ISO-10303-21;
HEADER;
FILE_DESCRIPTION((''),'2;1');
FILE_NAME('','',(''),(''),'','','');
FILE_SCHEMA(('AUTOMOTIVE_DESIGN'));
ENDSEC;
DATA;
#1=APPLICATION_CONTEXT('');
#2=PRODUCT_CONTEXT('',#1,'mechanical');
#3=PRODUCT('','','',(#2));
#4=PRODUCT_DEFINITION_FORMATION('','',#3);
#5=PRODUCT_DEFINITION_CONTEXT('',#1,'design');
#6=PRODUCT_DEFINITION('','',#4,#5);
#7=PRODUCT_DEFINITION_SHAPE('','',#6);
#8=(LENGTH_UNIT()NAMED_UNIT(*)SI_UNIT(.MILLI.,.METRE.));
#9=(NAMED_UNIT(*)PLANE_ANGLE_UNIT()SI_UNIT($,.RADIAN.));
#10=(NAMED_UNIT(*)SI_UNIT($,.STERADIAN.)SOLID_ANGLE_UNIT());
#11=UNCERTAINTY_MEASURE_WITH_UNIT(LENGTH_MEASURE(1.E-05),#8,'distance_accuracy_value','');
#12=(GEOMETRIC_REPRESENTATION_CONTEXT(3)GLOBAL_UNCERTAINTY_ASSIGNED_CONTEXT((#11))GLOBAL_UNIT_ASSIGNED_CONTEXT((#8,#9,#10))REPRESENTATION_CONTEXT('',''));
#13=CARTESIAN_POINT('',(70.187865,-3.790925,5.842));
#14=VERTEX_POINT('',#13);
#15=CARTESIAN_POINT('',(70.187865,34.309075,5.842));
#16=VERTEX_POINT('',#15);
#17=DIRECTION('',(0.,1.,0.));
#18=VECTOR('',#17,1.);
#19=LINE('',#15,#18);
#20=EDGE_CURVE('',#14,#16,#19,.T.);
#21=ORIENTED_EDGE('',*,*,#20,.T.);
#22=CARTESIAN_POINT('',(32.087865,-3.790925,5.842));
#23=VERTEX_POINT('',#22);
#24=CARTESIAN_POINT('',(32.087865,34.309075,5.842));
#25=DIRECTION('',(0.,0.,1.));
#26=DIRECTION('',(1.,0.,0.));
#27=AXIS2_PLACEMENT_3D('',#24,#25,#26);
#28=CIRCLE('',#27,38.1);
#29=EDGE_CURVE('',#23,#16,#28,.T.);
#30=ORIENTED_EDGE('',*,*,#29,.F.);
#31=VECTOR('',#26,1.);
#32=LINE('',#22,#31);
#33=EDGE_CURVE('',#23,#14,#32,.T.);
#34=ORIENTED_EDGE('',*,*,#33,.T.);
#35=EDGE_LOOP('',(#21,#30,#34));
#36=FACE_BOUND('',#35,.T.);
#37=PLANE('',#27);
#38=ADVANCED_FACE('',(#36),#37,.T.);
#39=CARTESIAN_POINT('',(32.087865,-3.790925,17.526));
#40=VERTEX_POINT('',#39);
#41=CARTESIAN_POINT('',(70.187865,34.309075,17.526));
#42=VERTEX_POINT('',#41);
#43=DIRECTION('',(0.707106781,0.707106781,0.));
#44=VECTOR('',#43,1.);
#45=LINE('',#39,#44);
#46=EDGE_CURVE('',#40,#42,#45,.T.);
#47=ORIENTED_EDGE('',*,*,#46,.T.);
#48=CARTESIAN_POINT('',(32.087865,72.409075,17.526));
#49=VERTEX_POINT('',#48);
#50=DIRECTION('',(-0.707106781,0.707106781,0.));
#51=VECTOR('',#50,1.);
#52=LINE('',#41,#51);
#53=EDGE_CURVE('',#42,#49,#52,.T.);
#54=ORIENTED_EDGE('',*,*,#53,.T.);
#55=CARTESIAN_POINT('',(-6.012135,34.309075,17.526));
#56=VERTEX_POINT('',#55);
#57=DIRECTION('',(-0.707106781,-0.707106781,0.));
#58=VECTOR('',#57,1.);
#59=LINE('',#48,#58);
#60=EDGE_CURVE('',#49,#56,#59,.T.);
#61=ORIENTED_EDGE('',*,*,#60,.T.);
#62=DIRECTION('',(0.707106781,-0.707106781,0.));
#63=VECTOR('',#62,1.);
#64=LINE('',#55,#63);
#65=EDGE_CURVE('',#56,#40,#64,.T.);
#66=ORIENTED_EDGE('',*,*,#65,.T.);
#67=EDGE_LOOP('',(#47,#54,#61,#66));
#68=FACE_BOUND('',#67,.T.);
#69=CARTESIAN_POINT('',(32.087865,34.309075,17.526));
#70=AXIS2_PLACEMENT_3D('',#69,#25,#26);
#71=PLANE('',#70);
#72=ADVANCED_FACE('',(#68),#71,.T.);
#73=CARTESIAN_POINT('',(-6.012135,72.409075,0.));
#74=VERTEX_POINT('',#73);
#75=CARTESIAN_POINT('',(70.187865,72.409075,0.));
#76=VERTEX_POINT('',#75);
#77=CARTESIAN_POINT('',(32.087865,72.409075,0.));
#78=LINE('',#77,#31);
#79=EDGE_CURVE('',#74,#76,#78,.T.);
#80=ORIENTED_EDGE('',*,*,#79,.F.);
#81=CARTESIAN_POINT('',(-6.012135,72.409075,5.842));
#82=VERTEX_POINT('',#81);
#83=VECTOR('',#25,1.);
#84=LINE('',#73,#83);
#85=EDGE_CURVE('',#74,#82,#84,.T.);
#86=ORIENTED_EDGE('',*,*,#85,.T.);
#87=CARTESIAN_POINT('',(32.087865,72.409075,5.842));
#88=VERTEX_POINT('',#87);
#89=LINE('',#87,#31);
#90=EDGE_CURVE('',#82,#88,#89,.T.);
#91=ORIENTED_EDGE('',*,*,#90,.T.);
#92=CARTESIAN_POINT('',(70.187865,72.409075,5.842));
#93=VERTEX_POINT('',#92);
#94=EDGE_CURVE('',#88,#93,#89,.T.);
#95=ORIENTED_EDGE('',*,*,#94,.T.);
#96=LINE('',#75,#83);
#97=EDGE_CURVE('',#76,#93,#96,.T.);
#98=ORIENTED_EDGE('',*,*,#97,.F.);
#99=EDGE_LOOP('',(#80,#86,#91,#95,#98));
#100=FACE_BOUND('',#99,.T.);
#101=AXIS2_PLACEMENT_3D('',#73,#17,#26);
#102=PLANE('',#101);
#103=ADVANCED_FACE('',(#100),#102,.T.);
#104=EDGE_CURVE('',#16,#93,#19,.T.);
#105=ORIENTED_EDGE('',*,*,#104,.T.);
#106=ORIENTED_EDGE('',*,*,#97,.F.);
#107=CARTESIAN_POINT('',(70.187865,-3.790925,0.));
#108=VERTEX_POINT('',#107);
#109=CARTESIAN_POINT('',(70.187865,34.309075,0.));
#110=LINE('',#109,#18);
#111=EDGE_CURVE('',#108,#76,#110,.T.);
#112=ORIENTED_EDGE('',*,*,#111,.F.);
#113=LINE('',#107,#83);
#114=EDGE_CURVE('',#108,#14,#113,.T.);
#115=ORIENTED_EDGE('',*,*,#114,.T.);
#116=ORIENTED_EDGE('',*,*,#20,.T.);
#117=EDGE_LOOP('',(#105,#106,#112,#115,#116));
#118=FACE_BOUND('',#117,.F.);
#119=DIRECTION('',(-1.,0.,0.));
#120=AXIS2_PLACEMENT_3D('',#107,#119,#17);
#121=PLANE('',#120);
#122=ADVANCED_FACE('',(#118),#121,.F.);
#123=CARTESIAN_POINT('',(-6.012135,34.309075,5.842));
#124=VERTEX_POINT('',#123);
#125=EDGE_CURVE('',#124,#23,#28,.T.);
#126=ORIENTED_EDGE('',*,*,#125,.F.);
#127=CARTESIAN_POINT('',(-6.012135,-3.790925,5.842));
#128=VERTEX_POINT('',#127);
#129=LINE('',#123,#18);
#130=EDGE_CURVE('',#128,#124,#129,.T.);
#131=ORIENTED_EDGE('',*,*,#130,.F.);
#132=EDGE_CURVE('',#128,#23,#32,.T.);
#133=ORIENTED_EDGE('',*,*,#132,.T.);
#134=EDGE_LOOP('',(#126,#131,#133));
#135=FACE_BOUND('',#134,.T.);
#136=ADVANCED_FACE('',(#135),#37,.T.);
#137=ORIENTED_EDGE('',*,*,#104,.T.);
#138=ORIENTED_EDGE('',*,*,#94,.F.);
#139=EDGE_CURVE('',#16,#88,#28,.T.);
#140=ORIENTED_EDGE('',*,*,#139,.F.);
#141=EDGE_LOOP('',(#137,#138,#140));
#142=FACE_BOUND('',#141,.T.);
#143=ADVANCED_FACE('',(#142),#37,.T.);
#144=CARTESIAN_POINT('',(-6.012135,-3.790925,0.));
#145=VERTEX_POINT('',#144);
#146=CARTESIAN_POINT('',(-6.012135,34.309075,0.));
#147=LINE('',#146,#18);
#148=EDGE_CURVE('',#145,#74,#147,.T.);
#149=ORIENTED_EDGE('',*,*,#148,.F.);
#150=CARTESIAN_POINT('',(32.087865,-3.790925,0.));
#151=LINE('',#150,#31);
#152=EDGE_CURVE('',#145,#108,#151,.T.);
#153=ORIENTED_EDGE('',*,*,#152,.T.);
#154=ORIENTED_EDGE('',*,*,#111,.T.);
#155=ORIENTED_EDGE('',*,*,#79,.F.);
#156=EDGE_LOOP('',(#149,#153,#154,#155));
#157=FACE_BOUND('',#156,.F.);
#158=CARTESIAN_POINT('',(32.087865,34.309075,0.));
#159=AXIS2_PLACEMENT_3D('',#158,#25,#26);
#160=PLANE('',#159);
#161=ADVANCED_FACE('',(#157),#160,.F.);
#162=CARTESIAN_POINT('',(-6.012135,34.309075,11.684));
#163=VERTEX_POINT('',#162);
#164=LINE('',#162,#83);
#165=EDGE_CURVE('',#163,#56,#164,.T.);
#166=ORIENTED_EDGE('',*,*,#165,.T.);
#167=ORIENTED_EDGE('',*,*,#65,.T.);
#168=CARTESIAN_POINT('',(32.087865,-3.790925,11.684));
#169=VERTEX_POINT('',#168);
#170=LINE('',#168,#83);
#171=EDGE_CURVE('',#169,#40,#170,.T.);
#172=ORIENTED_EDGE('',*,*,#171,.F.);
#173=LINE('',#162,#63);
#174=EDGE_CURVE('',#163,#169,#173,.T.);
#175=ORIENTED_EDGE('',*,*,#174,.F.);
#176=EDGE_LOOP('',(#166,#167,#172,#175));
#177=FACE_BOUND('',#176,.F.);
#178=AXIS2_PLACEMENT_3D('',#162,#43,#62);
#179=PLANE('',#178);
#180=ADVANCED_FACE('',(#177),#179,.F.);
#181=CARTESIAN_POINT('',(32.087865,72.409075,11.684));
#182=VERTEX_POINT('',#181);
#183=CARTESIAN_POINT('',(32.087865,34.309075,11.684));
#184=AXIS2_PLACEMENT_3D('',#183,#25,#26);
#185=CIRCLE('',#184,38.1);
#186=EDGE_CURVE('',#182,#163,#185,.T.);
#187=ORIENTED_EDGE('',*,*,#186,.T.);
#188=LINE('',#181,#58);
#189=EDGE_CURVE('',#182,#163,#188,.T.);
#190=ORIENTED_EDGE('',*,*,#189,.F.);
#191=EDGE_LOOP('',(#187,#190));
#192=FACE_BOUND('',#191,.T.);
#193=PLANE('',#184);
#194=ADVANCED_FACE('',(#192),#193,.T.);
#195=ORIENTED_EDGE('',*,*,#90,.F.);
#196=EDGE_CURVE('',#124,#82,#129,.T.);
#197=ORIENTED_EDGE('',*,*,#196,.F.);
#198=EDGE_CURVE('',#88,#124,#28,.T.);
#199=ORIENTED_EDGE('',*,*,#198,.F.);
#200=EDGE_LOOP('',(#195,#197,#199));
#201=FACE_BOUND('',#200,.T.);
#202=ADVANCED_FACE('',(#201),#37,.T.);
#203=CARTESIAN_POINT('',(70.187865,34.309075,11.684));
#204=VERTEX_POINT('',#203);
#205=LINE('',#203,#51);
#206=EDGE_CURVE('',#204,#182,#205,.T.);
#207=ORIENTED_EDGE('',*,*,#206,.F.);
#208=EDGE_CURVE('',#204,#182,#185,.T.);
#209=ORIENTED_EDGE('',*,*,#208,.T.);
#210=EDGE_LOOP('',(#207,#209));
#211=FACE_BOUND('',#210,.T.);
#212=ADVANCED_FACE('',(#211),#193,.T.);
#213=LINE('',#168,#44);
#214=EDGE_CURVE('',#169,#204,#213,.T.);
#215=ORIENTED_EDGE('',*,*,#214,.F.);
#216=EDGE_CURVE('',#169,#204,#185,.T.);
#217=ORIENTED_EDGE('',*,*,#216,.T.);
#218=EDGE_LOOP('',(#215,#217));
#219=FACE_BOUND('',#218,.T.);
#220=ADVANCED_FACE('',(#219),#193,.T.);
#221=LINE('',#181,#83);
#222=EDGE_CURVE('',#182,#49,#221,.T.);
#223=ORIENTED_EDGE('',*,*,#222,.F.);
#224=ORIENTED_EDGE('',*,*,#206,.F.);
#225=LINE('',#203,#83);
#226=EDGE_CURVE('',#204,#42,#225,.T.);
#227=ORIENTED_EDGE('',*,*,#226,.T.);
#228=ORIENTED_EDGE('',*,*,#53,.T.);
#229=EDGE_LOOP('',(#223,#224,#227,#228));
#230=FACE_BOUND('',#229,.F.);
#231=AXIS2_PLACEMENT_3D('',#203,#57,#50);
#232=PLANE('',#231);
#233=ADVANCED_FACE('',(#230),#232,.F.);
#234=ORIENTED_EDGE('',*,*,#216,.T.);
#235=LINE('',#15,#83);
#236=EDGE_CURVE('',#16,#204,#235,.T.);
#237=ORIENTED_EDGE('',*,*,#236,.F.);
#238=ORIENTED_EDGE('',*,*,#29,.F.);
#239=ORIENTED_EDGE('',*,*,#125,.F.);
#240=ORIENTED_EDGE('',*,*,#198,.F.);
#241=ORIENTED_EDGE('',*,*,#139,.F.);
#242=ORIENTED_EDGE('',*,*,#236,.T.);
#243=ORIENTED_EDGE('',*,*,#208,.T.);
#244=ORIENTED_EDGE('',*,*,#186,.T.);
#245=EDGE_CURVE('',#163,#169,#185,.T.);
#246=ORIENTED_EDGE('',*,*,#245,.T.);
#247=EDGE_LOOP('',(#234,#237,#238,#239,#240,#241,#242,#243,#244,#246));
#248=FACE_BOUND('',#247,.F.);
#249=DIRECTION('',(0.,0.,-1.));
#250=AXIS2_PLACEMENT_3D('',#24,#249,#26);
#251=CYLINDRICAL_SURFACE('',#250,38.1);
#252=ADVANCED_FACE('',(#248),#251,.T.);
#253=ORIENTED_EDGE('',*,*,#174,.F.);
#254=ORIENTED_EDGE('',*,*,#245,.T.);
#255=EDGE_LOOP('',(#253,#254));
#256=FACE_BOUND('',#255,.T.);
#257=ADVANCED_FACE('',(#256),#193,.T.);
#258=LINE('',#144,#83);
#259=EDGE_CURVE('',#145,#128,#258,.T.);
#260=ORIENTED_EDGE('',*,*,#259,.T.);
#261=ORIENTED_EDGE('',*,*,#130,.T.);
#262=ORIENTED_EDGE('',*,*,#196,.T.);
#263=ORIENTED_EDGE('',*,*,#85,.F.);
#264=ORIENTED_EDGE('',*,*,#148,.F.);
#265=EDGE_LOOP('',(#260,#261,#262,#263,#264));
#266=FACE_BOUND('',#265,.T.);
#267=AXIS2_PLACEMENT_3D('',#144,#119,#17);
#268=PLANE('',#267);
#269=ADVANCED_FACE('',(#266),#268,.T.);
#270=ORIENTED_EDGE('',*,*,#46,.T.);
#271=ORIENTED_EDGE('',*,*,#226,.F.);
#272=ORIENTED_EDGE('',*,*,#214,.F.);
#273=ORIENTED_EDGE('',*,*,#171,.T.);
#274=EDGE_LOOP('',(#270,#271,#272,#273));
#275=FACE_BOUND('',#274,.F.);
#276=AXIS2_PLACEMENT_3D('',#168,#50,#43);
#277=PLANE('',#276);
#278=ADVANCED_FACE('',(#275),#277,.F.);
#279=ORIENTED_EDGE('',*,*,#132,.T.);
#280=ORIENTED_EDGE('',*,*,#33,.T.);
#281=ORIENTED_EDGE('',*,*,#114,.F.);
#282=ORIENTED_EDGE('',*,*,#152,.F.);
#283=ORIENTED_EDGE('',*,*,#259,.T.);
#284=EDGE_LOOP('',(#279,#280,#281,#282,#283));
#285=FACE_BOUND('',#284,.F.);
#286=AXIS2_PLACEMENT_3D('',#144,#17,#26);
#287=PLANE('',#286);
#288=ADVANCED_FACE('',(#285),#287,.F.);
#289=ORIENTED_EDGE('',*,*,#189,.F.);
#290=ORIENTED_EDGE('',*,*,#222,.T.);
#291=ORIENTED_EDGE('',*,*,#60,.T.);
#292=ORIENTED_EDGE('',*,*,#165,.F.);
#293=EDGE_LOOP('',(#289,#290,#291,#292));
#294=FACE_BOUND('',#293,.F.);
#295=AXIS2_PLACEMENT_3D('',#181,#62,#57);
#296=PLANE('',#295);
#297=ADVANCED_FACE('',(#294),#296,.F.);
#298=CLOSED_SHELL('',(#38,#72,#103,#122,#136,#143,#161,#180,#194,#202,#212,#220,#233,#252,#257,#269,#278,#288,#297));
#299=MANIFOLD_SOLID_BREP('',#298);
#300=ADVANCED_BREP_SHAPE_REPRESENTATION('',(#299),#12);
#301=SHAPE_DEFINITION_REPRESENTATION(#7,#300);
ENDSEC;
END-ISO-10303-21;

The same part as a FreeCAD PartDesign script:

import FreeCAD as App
import Part
import Sketcher
from FreeCAD import Vector
Q = App.Units.Quantity

doc = App.newDocument("Part")
body = doc.addObject("PartDesign::Body", "Body")

# Sketch on XY plane
sketch1 = body.newObject("Sketcher::SketchObject", "Sketch")
sketch1.AttachmentSupport = (doc.getObject("XY_Plane"), [""])
sketch1.MapMode = "FlatFace"
sketch1.addGeometry(Part.LineSegment(Vector(-6.012135, 72.409075, 0), Vector(-6.012135, -3.790925, 0)), False)
sketch1.addGeometry(Part.LineSegment(Vector(-6.012135, -3.790925, 0), Vector(70.187865, -3.790925, 0)), False)
sketch1.addGeometry(Part.LineSegment(Vector(70.187865, -3.790925, 0), Vector(70.187865, 72.409075, 0)), False)
sketch1.addGeometry(Part.LineSegment(Vector(70.187865, 72.409075, 0), Vector(-6.012135, 72.409075, 0)), False)
sketch1.addConstraint(Sketcher.Constraint("Coincident", 0, 2, 1, 1))
sketch1.addConstraint(Sketcher.Constraint("Coincident", 1, 2, 2, 1))
sketch1.addConstraint(Sketcher.Constraint("Coincident", 2, 2, 3, 1))
sketch1.addConstraint(Sketcher.Constraint("Coincident", 3, 2, 0, 1))
sketch1.addConstraint(Sketcher.Constraint("Vertical", 0))
sketch1.addConstraint(Sketcher.Constraint("Horizontal", 1))
sketch1.addConstraint(Sketcher.Constraint("Vertical", 2))
sketch1.addConstraint(Sketcher.Constraint("Horizontal", 3))
sketch1.addConstraint(Sketcher.Constraint("Equal", 3, 0))
sketch1.addConstraint(Sketcher.Constraint("DistanceX", 1, 1, 1, 2, Q("3 in")))
sketch1.addConstraint(Sketcher.Constraint("DistanceX", 0, 2, -1, 1, Q("6.012135 mm")))
sketch1.addConstraint(Sketcher.Constraint("DistanceY", 0, 2, -1, 1, Q("3.790925 mm")))
pad1 = body.newObject("PartDesign::Pad", "Pad")
pad1.Profile = sketch1
pad1.Length = Q("0.23 in")

# Sketch on XY plane
sketch2 = body.newObject("Sketcher::SketchObject", "Sketch001")
sketch2.AttachmentSupport = (doc.getObject("XY_Plane"), [""])
sketch2.MapMode = "FlatFace"
sketch2.AttachmentOffset = App.Placement(Vector(0, 0, 0.23 * 25.4), App.Rotation())
sketch2.addGeometry(Part.Circle(Vector(32.087865, 34.309075, 0), Vector(0, 0, 1), 38.1), False)
sketch2.addConstraint(Sketcher.Constraint("Diameter", 0, Q("3 in")))
sketch2.addConstraint(Sketcher.Constraint("DistanceX", -1, 1, 0, 3, Q("32.087865 mm")))
sketch2.addConstraint(Sketcher.Constraint("DistanceY", -1, 1, 0, 3, Q("34.309075 mm")))
pad2 = body.newObject("PartDesign::Pad", "Pad001")
pad2.Profile = sketch2
pad2.Length = Q("0.23 in")

# Sketch on XY plane
sketch3 = body.newObject("Sketcher::SketchObject", "Sketch002")
sketch3.AttachmentSupport = (doc.getObject("XY_Plane"), [""])
sketch3.MapMode = "FlatFace"
sketch3.AttachmentOffset = App.Placement(Vector(0, 0, 0.46 * 25.4), App.Rotation())
sketch3.addGeometry(Part.LineSegment(Vector(70.187865, 34.309075, 0), Vector(32.087865, 72.409075, 0)), False)
sketch3.addGeometry(Part.LineSegment(Vector(32.087865, 72.409075, 0), Vector(-6.012135, 34.309075, 0)), False)
sketch3.addGeometry(Part.LineSegment(Vector(-6.012135, 34.309075, 0), Vector(32.087865, -3.790925, 0)), False)
sketch3.addGeometry(Part.LineSegment(Vector(32.087865, -3.790925, 0), Vector(70.187865, 34.309075, 0)), False)
sketch3.addConstraint(Sketcher.Constraint("Coincident", 0, 2, 1, 1))
sketch3.addConstraint(Sketcher.Constraint("Coincident", 1, 2, 2, 1))
sketch3.addConstraint(Sketcher.Constraint("Coincident", 2, 2, 3, 1))
sketch3.addConstraint(Sketcher.Constraint("Coincident", 3, 2, 0, 1))
sketch3.addConstraint(Sketcher.Constraint("Perpendicular", 0, 1))
sketch3.addConstraint(Sketcher.Constraint("Perpendicular", 1, 2))
sketch3.addConstraint(Sketcher.Constraint("Perpendicular", 2, 3))
sketch3.addConstraint(Sketcher.Constraint("Horizontal", 1, 2, 3, 2))
sketch3.addConstraint(Sketcher.Constraint("Vertical", 0, 2, 2, 2))
sketch3.addConstraint(Sketcher.Constraint("DistanceY", 2, 2, 0, 2, Q("3 in")))
sketch3.addConstraint(Sketcher.Constraint("DistanceX", -1, 1, 0, 2, Q("32.087865 mm")))
sketch3.addConstraint(Sketcher.Constraint("DistanceY", -1, 1, 0, 2, Q("72.409075 mm")))
pad3 = body.newObject("PartDesign::Pad", "Pad002")
pad3.Profile = sketch3
pad3.Length = Q("0.23 in")

doc.recompute()
